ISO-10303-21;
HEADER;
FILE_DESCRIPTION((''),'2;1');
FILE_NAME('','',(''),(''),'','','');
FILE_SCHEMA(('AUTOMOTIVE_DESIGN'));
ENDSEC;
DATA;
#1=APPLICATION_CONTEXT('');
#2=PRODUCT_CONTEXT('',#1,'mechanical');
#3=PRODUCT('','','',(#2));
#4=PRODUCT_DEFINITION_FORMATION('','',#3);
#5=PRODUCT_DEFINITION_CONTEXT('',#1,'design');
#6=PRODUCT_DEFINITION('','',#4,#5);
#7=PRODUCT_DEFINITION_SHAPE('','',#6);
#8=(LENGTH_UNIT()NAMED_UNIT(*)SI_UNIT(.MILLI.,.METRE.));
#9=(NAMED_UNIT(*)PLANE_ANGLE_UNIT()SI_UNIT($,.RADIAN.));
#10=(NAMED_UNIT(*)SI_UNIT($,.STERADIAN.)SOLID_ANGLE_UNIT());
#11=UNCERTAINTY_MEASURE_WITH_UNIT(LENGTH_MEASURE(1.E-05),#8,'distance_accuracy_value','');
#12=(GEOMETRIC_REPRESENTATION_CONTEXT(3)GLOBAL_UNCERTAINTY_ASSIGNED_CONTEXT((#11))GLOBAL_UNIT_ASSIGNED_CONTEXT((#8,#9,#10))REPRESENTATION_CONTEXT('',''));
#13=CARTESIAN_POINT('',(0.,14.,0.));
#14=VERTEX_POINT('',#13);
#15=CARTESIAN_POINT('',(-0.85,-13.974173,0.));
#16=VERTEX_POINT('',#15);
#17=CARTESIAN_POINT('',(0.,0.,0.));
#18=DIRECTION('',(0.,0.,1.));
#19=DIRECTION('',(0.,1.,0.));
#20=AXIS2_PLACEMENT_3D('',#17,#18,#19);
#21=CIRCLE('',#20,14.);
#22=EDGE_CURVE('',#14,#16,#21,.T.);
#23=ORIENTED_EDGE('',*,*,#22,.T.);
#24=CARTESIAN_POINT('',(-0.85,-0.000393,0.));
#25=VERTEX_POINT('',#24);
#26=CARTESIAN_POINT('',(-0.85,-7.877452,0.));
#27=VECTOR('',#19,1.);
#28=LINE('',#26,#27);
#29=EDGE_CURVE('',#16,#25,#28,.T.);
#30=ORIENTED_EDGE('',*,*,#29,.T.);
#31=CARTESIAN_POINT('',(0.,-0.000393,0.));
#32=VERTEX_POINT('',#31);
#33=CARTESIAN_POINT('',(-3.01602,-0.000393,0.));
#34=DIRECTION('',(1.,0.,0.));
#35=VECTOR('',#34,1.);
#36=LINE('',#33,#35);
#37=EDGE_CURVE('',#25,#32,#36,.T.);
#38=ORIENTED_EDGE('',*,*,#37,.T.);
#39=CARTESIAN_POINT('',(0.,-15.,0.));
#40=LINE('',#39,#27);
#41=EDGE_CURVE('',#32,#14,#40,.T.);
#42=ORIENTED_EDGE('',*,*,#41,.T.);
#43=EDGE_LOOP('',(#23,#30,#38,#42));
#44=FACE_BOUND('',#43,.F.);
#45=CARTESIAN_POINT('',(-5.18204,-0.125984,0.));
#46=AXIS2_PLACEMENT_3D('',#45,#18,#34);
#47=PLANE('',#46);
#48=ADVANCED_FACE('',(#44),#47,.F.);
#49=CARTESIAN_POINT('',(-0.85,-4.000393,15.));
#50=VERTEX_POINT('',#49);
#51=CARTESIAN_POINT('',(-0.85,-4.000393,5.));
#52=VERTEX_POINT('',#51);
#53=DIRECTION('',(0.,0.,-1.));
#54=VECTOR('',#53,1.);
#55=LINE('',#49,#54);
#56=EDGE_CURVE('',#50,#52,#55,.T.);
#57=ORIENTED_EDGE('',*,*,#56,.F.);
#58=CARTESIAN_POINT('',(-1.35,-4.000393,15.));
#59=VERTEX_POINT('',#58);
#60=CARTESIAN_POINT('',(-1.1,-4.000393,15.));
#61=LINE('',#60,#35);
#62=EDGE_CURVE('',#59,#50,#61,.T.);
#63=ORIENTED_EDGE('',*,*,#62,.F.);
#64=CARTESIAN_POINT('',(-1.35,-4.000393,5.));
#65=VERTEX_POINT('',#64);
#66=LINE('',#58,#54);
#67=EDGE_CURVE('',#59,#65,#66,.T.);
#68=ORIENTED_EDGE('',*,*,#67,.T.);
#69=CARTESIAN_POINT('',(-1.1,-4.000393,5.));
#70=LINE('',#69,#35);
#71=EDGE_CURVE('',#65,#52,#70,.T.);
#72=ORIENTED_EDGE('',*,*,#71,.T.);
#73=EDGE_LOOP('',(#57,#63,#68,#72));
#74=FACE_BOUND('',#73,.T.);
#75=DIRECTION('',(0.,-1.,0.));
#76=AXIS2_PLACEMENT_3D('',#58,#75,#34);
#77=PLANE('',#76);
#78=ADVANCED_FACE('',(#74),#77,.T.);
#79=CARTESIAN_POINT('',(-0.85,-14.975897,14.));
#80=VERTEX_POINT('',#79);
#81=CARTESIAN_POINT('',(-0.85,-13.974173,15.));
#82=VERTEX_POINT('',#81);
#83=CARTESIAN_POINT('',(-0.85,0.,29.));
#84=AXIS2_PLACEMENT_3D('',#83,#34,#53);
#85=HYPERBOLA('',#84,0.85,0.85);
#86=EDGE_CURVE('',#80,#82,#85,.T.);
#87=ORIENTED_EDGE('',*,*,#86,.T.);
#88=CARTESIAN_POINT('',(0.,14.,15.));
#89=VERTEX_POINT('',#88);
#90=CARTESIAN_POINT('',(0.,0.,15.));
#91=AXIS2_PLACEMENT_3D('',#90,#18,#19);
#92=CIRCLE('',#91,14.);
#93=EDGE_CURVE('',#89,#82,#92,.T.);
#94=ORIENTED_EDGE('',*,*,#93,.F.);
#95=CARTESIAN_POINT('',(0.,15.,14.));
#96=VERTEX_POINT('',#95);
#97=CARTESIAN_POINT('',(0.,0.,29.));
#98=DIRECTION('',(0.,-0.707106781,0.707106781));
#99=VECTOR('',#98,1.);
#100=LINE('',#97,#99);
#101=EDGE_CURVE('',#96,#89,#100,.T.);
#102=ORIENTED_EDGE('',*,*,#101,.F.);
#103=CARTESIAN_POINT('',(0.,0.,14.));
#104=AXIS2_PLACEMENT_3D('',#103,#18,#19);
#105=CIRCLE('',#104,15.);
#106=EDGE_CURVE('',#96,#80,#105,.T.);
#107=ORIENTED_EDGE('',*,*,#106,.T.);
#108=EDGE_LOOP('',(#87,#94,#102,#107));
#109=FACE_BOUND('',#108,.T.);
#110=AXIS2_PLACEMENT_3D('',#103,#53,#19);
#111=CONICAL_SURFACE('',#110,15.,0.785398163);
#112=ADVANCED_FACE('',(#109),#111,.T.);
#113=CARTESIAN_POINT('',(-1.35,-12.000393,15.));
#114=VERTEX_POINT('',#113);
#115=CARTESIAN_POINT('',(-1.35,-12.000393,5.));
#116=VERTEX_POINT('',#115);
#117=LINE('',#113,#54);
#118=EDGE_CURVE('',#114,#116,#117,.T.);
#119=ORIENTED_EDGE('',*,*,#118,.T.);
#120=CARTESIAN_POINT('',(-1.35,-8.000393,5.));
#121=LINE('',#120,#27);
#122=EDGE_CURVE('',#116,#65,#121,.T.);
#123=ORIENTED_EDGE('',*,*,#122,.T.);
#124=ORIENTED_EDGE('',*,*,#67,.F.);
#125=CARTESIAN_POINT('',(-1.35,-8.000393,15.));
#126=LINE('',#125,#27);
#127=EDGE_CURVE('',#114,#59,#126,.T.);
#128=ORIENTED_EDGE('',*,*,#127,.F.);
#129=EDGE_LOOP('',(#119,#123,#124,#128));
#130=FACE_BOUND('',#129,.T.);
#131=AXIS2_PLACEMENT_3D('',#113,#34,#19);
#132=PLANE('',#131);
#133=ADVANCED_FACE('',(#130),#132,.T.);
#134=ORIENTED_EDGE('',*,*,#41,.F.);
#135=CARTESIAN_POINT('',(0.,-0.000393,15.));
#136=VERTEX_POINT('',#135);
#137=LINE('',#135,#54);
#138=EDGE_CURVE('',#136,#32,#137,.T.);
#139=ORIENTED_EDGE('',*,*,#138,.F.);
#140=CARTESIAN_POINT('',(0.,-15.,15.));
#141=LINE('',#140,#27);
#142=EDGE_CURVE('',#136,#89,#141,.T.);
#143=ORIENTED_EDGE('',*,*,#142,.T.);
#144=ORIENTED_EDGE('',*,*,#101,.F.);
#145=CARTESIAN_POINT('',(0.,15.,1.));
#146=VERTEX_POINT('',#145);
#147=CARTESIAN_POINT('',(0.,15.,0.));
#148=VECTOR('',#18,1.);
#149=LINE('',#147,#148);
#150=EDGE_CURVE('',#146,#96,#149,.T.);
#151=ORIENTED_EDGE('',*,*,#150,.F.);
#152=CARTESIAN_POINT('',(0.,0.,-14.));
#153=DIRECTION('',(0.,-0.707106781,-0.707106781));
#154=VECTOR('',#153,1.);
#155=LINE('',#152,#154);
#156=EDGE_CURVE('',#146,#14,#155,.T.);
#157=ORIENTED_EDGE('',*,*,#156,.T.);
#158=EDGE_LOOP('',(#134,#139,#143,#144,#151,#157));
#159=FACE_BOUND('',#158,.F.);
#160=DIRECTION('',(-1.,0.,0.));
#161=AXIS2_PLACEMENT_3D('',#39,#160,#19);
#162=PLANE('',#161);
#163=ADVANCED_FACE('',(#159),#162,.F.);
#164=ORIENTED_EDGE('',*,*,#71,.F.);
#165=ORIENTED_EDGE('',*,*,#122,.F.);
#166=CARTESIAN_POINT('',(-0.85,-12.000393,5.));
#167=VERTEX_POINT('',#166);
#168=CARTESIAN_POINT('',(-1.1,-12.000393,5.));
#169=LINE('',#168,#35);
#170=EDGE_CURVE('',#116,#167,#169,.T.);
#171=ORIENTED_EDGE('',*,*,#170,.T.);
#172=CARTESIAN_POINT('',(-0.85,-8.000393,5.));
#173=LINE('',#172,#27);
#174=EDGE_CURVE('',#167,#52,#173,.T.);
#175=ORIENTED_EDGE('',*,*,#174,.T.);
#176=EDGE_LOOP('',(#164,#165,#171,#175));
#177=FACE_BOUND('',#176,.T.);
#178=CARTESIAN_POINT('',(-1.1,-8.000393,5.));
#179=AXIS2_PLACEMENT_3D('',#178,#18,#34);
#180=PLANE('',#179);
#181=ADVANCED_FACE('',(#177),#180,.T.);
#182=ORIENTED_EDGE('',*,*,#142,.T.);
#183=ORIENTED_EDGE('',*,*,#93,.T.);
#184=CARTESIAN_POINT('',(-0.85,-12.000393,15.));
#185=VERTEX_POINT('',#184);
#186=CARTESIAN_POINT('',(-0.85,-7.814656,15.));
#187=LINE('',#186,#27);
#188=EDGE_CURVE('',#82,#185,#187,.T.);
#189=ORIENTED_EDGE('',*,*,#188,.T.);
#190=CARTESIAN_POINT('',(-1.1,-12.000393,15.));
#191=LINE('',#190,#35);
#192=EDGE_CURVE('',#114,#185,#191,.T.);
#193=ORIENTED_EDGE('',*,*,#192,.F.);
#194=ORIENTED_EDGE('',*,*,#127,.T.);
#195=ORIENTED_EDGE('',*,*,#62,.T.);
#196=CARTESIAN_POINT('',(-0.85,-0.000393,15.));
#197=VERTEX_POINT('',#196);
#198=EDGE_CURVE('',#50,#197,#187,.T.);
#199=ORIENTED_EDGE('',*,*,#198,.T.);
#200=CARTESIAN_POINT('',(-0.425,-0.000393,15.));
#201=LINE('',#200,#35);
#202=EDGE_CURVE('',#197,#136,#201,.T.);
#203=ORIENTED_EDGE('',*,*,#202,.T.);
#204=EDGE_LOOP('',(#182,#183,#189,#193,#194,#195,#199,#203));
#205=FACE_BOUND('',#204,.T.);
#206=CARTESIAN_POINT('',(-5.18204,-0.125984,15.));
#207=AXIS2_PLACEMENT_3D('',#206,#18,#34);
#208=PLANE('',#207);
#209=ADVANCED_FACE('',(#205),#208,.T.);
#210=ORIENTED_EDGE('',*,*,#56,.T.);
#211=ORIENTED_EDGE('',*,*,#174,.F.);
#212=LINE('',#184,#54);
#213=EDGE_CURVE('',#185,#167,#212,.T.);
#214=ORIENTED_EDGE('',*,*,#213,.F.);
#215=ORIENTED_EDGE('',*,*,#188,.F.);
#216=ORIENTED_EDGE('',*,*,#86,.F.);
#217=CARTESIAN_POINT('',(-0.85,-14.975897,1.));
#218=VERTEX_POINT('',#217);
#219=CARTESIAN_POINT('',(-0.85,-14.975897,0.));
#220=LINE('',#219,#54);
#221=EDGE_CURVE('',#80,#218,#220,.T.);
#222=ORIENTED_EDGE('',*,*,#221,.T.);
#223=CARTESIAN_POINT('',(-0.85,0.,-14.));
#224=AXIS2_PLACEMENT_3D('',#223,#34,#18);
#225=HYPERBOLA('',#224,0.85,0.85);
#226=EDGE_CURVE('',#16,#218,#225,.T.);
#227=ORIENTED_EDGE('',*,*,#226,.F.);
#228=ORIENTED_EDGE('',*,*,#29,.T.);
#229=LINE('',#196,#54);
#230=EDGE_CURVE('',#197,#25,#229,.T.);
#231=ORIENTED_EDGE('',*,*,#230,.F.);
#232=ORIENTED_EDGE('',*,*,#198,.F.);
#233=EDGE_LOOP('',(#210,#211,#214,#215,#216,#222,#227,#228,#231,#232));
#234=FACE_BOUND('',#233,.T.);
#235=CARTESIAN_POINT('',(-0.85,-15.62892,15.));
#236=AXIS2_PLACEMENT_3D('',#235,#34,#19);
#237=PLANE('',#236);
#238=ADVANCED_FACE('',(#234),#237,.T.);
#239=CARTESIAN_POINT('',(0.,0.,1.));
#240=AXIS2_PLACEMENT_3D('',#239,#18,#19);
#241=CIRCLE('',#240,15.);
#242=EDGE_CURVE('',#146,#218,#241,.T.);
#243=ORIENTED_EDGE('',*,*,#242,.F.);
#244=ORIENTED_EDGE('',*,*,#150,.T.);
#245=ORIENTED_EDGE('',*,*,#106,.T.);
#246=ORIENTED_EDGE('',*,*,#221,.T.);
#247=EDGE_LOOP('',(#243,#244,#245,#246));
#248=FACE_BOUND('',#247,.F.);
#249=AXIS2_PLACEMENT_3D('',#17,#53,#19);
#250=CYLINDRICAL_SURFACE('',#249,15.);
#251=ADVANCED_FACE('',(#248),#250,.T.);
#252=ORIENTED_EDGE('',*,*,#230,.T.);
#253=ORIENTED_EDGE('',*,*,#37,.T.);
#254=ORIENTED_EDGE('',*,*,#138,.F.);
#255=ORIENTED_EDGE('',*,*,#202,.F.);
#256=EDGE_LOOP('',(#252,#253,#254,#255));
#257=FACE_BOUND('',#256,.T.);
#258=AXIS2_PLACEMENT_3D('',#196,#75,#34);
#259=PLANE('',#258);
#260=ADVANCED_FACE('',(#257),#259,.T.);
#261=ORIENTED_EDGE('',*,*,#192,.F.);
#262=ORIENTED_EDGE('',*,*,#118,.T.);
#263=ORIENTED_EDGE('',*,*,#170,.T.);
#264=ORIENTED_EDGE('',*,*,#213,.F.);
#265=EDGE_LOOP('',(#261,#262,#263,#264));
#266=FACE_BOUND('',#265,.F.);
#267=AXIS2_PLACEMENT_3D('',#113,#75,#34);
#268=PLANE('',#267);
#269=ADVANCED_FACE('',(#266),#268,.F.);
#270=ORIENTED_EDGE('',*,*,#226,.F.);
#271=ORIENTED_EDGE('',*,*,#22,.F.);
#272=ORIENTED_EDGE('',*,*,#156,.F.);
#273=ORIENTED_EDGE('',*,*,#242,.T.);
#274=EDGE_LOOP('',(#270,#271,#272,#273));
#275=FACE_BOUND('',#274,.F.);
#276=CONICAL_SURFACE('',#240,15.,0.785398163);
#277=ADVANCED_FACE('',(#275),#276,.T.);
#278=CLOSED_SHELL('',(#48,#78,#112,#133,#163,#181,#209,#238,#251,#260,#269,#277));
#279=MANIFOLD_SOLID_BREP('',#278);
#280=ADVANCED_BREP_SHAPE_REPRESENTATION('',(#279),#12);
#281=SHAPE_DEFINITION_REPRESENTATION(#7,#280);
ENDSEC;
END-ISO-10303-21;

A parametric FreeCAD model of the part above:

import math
import FreeCAD as App
import Part
import Sketcher
Q = App.Units.Quantity


def edges_at(feature, points):
    """Names of the edges that pass closest to the given points."""
    edges = feature.Shape.Edges
    near = lambda p: min(range(len(edges)), key=lambda i: edges[i].distToShape(Part.Vertex(*p))[0])
    return sorted({f"Edge{near(p) + 1}" for p in points})


def add_polygon(sketch, points):
    """Adds a closed chain of lines whose ends are joined by coincident constraints."""
    first, n = sketch.GeometryCount, len(points)
    for a, b in zip(points, points[1:] + points[:1]):
        sketch.addGeometry(Part.LineSegment(App.Vector(*a, 0), App.Vector(*b, 0)), False)
    for i in range(n):
        sketch.addConstraint(Sketcher.Constraint("Coincident", first + i, 2, first + (i + 1) % n, 1))

doc = App.newDocument("Part")
body = doc.addObject("PartDesign::Body", "Body")

sketch1 = body.newObject("Sketcher::SketchObject", "Sketch")
sketch1.AttachmentSupport = (doc.getObject("XY_Plane"), [""])
sketch1.MapMode = "FlatFace"
sketch1.addGeometry([
    Part.ArcOfCircle(Part.Circle(App.Vector(0, 0, 0), App.Vector(0, 0, 1), 15), math.radians(90), math.radians(270)),
    Part.LineSegment(App.Vector(0, -15, 0), App.Vector(0, 15, 0)),
], False)
sketch1.addConstraint([
    Sketcher.Constraint("Coincident", 0, 1, 1, 2),
    Sketcher.Constraint("Coincident", 1, 1, 0, 2),
    Sketcher.Constraint("Vertical", 1),
    Sketcher.Constraint("Coincident", 0, 3, -1, 1),
    Sketcher.Constraint("PointOnObject", 0, 1, -2),
    Sketcher.Constraint("Radius", 0, Q("15 mm")),
])
pad1 = body.newObject("PartDesign::Pad", "Pad")
pad1.Profile = sketch1
pad1.Length = 15
doc.recompute()

chamfer = body.newObject("PartDesign::Chamfer", "Chamfer")
chamfer.Base = (pad1, edges_at(pad1, [(-15, 0, 15), (-15, 0, 0)]))
chamfer.Size = 1

sketch2 = body.newObject("Sketcher::SketchObject", "Sketch001")
sketch2.AttachmentSupport = (doc.getObject("XY_Plane"), [""])
sketch2.MapMode = "FlatFace"
sketch2.AttachmentOffset = App.Placement(App.Vector(0, 0, 15), App.Rotation())
add_polygon(sketch2, [(-0.85, -0.000392), (-0.85, -15.62892), (0, -15.62892), (0, -0.000392)])
sketch2.addConstraint([
    Sketcher.Constraint("Vertical", 0),
    Sketcher.Constraint("Horizontal", 1),
    Sketcher.Constraint("Vertical", 2),
    Sketcher.Constraint("Horizontal", 3),
    Sketcher.Constraint("PointOnObject", 1, 2, -2),
    Sketcher.Constraint("DistanceX", 1, 1, 1, 2, Q("0.85 mm")),
    Sketcher.Constraint("DistanceY", 0, 2, 0, 1, Q("15.628527 mm")),
    Sketcher.Constraint("DistanceY", 0, 2, -1, 1, Q("15.62892 mm")),
])
pocket1 = body.newObject("PartDesign::Pocket", "Pocket")
pocket1.Profile = sketch2
pocket1.Length = 25

sketch3 = body.newObject("Sketcher::SketchObject", "Sketch002")
sketch3.AttachmentSupport = (doc.getObject("XY_Plane"), [""])
sketch3.MapMode = "FlatFace"
sketch3.AttachmentOffset = App.Placement(App.Vector(0, 0, 15), App.Rotation())
add_polygon(sketch3, [(-1.35, -4.000393), (-1.35, -12.000393), (-0.85, -12.000393), (-0.85, -4.000393)])
sketch3.addConstraint([
    Sketcher.Constraint("Vertical", 0),
    Sketcher.Constraint("Horizontal", 1),
    Sketcher.Constraint("Vertical", 2),
    Sketcher.Constraint("Horizontal", 3),
    Sketcher.Constraint("DistanceY", 0, 2, 0, 1, Q("8 mm")),
    Sketcher.Constraint("DistanceX", 1, 1, 1, 2, Q("0.5 mm")),
    Sketcher.Constraint("DistanceX", 0, 2, -1, 1, Q("1.35 mm")),
    Sketcher.Constraint("DistanceY", 0, 2, -1, 1, Q("12.000393 mm")),
])
pocket2 = body.newObject("PartDesign::Pocket", "Pocket001")
pocket2.Profile = sketch3
pocket2.Length = 10

doc.recompute()
